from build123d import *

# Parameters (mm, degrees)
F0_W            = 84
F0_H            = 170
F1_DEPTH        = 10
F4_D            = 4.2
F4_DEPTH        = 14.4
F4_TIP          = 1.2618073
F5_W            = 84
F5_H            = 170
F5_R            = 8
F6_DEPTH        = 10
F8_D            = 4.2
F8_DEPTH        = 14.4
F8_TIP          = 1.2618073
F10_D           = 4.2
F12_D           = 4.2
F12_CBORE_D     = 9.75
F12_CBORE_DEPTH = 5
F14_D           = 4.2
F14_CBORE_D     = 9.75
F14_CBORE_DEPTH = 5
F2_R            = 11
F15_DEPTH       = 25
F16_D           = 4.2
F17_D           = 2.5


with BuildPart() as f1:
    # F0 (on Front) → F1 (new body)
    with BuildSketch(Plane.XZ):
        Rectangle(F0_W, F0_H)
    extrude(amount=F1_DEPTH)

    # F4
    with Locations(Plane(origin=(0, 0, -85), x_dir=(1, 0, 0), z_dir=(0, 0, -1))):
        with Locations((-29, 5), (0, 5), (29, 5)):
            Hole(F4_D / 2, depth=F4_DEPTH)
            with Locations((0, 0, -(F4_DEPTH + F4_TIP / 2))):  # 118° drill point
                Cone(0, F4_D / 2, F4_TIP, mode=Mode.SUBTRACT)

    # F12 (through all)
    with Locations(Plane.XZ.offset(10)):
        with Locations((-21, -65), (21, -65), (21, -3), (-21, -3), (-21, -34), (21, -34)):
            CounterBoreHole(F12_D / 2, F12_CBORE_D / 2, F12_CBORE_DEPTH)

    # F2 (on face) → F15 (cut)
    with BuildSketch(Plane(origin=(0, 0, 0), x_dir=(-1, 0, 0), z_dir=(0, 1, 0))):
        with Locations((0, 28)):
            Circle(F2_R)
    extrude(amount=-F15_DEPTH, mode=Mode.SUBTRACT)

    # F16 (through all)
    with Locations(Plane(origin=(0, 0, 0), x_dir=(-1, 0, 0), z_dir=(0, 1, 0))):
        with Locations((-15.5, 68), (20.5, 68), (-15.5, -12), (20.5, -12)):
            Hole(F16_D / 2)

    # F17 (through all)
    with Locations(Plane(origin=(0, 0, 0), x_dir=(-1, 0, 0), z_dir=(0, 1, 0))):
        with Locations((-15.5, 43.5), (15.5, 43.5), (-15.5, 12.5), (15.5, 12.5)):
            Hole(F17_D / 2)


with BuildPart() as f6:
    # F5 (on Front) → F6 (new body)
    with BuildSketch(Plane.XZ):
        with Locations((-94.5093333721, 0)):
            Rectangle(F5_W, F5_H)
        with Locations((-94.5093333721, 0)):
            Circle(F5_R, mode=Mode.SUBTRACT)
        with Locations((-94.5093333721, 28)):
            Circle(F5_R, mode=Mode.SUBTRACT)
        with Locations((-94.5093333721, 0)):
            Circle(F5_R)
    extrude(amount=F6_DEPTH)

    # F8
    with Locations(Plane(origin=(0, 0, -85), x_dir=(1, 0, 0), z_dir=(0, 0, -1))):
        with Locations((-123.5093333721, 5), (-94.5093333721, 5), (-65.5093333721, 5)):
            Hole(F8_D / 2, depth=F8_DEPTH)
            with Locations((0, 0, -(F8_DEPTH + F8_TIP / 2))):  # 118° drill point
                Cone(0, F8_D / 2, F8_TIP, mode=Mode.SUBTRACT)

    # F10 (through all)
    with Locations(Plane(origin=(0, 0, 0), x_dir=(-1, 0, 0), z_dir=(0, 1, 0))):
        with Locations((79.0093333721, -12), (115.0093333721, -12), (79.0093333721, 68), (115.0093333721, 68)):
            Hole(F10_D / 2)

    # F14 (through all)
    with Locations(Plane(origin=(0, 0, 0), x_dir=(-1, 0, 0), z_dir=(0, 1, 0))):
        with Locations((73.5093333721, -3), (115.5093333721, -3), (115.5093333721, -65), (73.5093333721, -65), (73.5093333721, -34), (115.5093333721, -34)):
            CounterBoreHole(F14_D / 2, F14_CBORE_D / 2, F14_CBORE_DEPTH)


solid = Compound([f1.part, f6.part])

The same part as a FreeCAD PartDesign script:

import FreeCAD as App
import Part
import Sketcher

V = App.Vector

doc = App.newDocument("Part")
body = doc.addObject("PartDesign::Body", "Body")

sketch1 = doc.addObject("Sketcher::SketchObject", "Sketch")
body.addObject(sketch1)
sketch1.AttachmentSupport = (doc.XZ_Plane, [""])
sketch1.MapMode = "FlatFace"
sketch1.addGeometry([
    Part.LineSegment(V(-42, 85, 0), V(-42, -85, 0)),
    Part.LineSegment(V(-42, -85, 0), V(42, -85, 0)),
    Part.LineSegment(V(42, -85, 0), V(42, 85, 0)),
    Part.LineSegment(V(42, 85, 0), V(-42, 85, 0)),
], False)
sketch1.addConstraint([
    Sketcher.Constraint("Coincident", 0, 2, 1, 1),
    Sketcher.Constraint("Coincident", 1, 2, 2, 1),
    Sketcher.Constraint("Coincident", 2, 2, 3, 1),
    Sketcher.Constraint("Coincident", 3, 2, 0, 1),
    Sketcher.Constraint("Vertical", 0),
    Sketcher.Constraint("Horizontal", 1),
    Sketcher.Constraint("Vertical", 2),
    Sketcher.Constraint("Horizontal", 3),
    Sketcher.Constraint("Symmetric", 0, 2, 2, 2, -1, 1),
    Sketcher.Constraint("DistanceX", 1, 1, 1, 2, 84.0),
    Sketcher.Constraint("DistanceY", 0, 2, 0, 1, 170.0),
])
pad1 = doc.addObject("PartDesign::Pad", "Pad")
body.addObject(pad1)
pad1.Profile = sketch1
pad1.Length = 10

sketch2 = doc.addObject("Sketcher::SketchObject", "Sketch001")
body.addObject(sketch2)
sketch2.AttachmentSupport = (doc.XY_Plane, [""])
sketch2.MapMode = "FlatFace"
sketch2.AttachmentOffset = App.Placement(V(0, 0, -85), App.Rotation())
sketch2.addGeometry([
    Part.Circle(V(-29, -5, 0), V(0, 0, 1), 2.1),
    Part.Circle(V(0, -5, 0), V(0, 0, 1), 2.1),
    Part.Circle(V(29, -5, 0), V(0, 0, 1), 2.1),
], False)
sketch2.addConstraint([
    Sketcher.Constraint("Equal", 0, 1),
    Sketcher.Constraint("Equal", 1, 2),
    Sketcher.Constraint("Symmetric", 0, 3, 2, 3, -2),
    Sketcher.Constraint("PointOnObject", 1, 3, -2),
    Sketcher.Constraint("Horizontal", 0, 3, 1, 3),
    Sketcher.Constraint("Diameter", 0, 4.2),
    Sketcher.Constraint("DistanceX", 0, 3, -1, 1, 29.0),
    Sketcher.Constraint("DistanceY", 0, 3, -1, 1, 5.0),
])
doc.recompute()
hole = doc.addObject("PartDesign::Hole", "Hole")
body.addObject(hole)
hole.Profile = sketch2
hole.ThreadType = "None"
hole.Diameter = 4.2
hole.DepthType = "Dimension"
hole.Depth = 14.4
hole.DrillPoint = "Angled"
hole.DrillPointAngle = 118
hole.Reversed = True

sketch3 = doc.addObject("Sketcher::SketchObject", "Sketch002")
body.addObject(sketch3)
sketch3.AttachmentSupport = (doc.XZ_Plane, [""])
sketch3.MapMode = "FlatFace"
sketch3.AttachmentOffset = App.Placement(V(0, 0, 10), App.Rotation())
sketch3.addGeometry([
    Part.Circle(V(-21, -65, 0), V(0, 0, 1), 2.1),
    Part.Circle(V(21, -65, 0), V(0, 0, 1), 2.1),
    Part.Circle(V(21, -3, 0), V(0, 0, 1), 2.1),
    Part.Circle(V(-21, -3, 0), V(0, 0, 1), 2.1),
    Part.Circle(V(-21, -34, 0), V(0, 0, 1), 2.1),
    Part.Circle(V(21, -34, 0), V(0, 0, 1), 2.1),
], False)
sketch3.addConstraint([
    Sketcher.Constraint("Equal", 0, 1),
    Sketcher.Constraint("Equal", 1, 2),
    Sketcher.Constraint("Equal", 2, 3),
    Sketcher.Constraint("Equal", 3, 4),
    Sketcher.Constraint("Equal", 4, 5),
    Sketcher.Constraint("Symmetric", 0, 3, 1, 3, -2),
    Sketcher.Constraint("Symmetric", 2, 3, 3, 3, -2),
    Sketcher.Constraint("Symmetric", 4, 3, 5, 3, -2),
    Sketcher.Constraint("Vertical", 1, 3, 2, 3),
    Sketcher.Constraint("Vertical", 3, 3, 4, 3),
    Sketcher.Constraint("Diameter", 0, 4.2),
    Sketcher.Constraint("DistanceX", 0, 3, -1, 1, 21.0),
    Sketcher.Constraint("DistanceY", 0, 3, -1, 1, 65.0),
    Sketcher.Constraint("DistanceY", 2, 3, -1, 1, 3.0),
    Sketcher.Constraint("DistanceY", 4, 3, -1, 1, 34.0),
])
doc.recompute()
hole2 = doc.addObject("PartDesign::Hole", "Hole001")
body.addObject(hole2)
hole2.Profile = sketch3
hole2.ThreadType = "None"
hole2.Diameter = 4.2
hole2.DepthType = "ThroughAll"
hole2.HoleCutType = "Counterbore"
hole2.HoleCutDiameter = 9.75
hole2.HoleCutDepth = 5

sketch4 = doc.addObject("Sketcher::SketchObject", "Sketch003")
body.addObject(sketch4)
sketch4.AttachmentSupport = (doc.XZ_Plane, [""])
sketch4.MapMode = "FlatFace"
sketch4.addGeometry(Part.Circle(V(0, 28, 0), V(0, 0, 1), 11), False)
sketch4.addConstraint([
    Sketcher.Constraint("PointOnObject", 0, 3, -2),
    Sketcher.Constraint("Diameter", 0, 22.0),
    Sketcher.Constraint("DistanceY", -1, 1, 0, 3, 28.0),
])
pocket1 = doc.addObject("PartDesign::Pocket", "Pocket")
body.addObject(pocket1)
pocket1.Profile = sketch4
pocket1.Length = 25
pocket1.Reversed = True

sketch5 = doc.addObject("Sketcher::SketchObject", "Sketch004")
body.addObject(sketch5)
sketch5.AttachmentSupport = (doc.XZ_Plane, [""])
sketch5.MapMode = "FlatFace"
sketch5.addGeometry([
    Part.Circle(V(15.5, 68, 0), V(0, 0, 1), 2.1),
    Part.Circle(V(-20.5, 68, 0), V(0, 0, 1), 2.1),
    Part.Circle(V(15.5, -12, 0), V(0, 0, 1), 2.1),
    Part.Circle(V(-20.5, -12, 0), V(0, 0, 1), 2.1),
], False)
sketch5.addConstraint([
    Sketcher.Constraint("Equal", 0, 1),
    Sketcher.Constraint("Equal", 1, 2),
    Sketcher.Constraint("Equal", 2, 3),
    Sketcher.Constraint("Horizontal", 0, 3, 1, 3),
    Sketcher.Constraint("Horizontal", 2, 3, 3, 3),
    Sketcher.Constraint("Vertical", 0, 3, 2, 3),
    Sketcher.Constraint("Vertical", 1, 3, 3, 3),
    Sketcher.Constraint("Diameter", 0, 4.2),
    Sketcher.Constraint("DistanceY", -1, 1, 0, 3, 68.0),
    Sketcher.Constraint("DistanceY", 2, 3, -1, 1, 12.0),
    Sketcher.Constraint("DistanceX", 1, 3, 0, 3, 36.0),
    Sketcher.Constraint("DistanceX", -1, 1, 0, 3, 15.5),
])
doc.recompute()
hole3 = doc.addObject("PartDesign::Hole", "Hole002")
body.addObject(hole3)
hole3.Profile = sketch5
hole3.ThreadType = "None"
hole3.Diameter = 4.2
hole3.DepthType = "ThroughAll"
hole3.Reversed = True

sketch6 = doc.addObject("Sketcher::SketchObject", "Sketch005")
body.addObject(sketch6)
sketch6.AttachmentSupport = (doc.XZ_Plane, [""])
sketch6.MapMode = "FlatFace"
sketch6.addGeometry([
    Part.Circle(V(15.5, 43.5, 0), V(0, 0, 1), 1.2),
    Part.Circle(V(-15.5, 43.5, 0), V(0, 0, 1), 1.2),
    Part.Circle(V(15.5, 12.5, 0), V(0, 0, 1), 1.2),
    Part.Circle(V(-15.5, 12.5, 0), V(0, 0, 1), 1.2),
], False)
sketch6.addConstraint([
    Sketcher.Constraint("Equal", 0, 1),
    Sketcher.Constraint("Equal", 1, 2),
    Sketcher.Constraint("Equal", 2, 3),
    Sketcher.Constraint("Symmetric", 0, 3, 1, 3, -2),
    Sketcher.Constraint("Symmetric", 2, 3, 3, 3, -2),
    Sketcher.Constraint("Vertical", 0, 3, 2, 3),
    Sketcher.Constraint("Diameter", 0, 2.5),
    Sketcher.Constraint("DistanceX", 1, 3, 0, 3, 31.0),
    Sketcher.Constraint("DistanceY", 2, 3, 0, 3, 31.0),
    Sketcher.Constraint("DistanceY", -1, 1, 0, 3, 43.5),
])
doc.recompute()
hole4 = doc.addObject("PartDesign::Hole", "Hole003")
body.addObject(hole4)
hole4.Profile = sketch6
hole4.ThreadType = "None"
hole4.Diameter = 2.5
hole4.DepthType = "ThroughAll"
hole4.Reversed = True
body2 = doc.addObject("PartDesign::Body", "Body001")

sketch7 = doc.addObject("Sketcher::SketchObject", "Sketch006")
body2.addObject(sketch7)
sketch7.AttachmentSupport = (doc.getObject("XZ_Plane001"), [""])
sketch7.MapMode = "FlatFace"
sketch7.addGeometry([
    Part.LineSegment(V(-137, 85, 0), V(-137, -85, 0)),
    Part.LineSegment(V(-137, -85, 0), V(-53, -85, 0)),
    Part.LineSegment(V(-53, -85, 0), V(-53, 85, 0)),
    Part.LineSegment(V(-53, 85, 0), V(-137, 85, 0)),
    Part.Circle(V(-95, 28, 0), V(0, 0, 1), 8),
], False)
sketch7.addConstraint([
    Sketcher.Constraint("Coincident", 0, 2, 1, 1),
    Sketcher.Constraint("Coincident", 1, 2, 2, 1),
    Sketcher.Constraint("Coincident", 2, 2, 3, 1),
    Sketcher.Constraint("Coincident", 3, 2, 0, 1),
    Sketcher.Constraint("Vertical", 0),
    Sketcher.Constraint("Horizontal", 1),
    Sketcher.Constraint("Vertical", 2),
    Sketcher.Constraint("Horizontal", 3),
    Sketcher.Constraint("Diameter", 4, 16.0),
    Sketcher.Constraint("DistanceX", 1, 1, 1, 2, 84.0),
    Sketcher.Constraint("DistanceY", 0, 2, 0, 1, 170.0),
    Sketcher.Constraint("DistanceY", -1, 1, 4, 3, 28.0),
    Sketcher.Constraint("DistanceY", 0, 2, -1, 1, 85.0),
    Sketcher.Constraint("DistanceX", 0, 2, 4, 3, 42.0),
    Sketcher.Constraint("DistanceX", 4, 3, -1, 1, 94.509333),
])
pad2 = doc.addObject("PartDesign::Pad", "Pad001")
body2.addObject(pad2)
pad2.Profile = sketch7
pad2.Length = 10

sketch8 = doc.addObject("Sketcher::SketchObject", "Sketch007")
body2.addObject(sketch8)
sketch8.AttachmentSupport = (doc.getObject("XY_Plane001"), [""])
sketch8.MapMode = "FlatFace"
sketch8.AttachmentOffset = App.Placement(V(0, 0, -85), App.Rotation())
sketch8.addGeometry([
    Part.Circle(V(-123.5, -5, 0), V(0, 0, 1), 2.1),
    Part.Circle(V(-94.5, -5, 0), V(0, 0, 1), 2.1),
    Part.Circle(V(-65.5, -5, 0), V(0, 0, 1), 2.1),
], False)
sketch8.addConstraint([
    Sketcher.Constraint("Equal", 0, 1),
    Sketcher.Constraint("Equal", 1, 2),
    Sketcher.Constraint("Horizontal", 0, 3, 1, 3),
    Sketcher.Constraint("Horizontal", 1, 3, 2, 3),
    Sketcher.Constraint("Diameter", 0, 4.2),
    Sketcher.Constraint("DistanceY", 0, 3, -1, 1, 5.0),
    Sketcher.Constraint("DistanceX", 0, 3, 1, 3, 29.0),
    Sketcher.Constraint("DistanceX", 1, 3, 2, 3, 29.0),
    Sketcher.Constraint("DistanceX", 0, 3, -1, 1, 123.509333),
])
doc.recompute()
hole5 = doc.addObject("PartDesign::Hole", "Hole004")
body2.addObject(hole5)
hole5.Profile = sketch8
hole5.ThreadType = "None"
hole5.Diameter = 4.2
hole5.DepthType = "Dimension"
hole5.Depth = 14.4
hole5.DrillPoint = "Angled"
hole5.DrillPointAngle = 118
hole5.Reversed = True

sketch9 = doc.addObject("Sketcher::SketchObject", "Sketch008")
body2.addObject(sketch9)
sketch9.AttachmentSupport = (doc.getObject("XZ_Plane001"), [""])
sketch9.MapMode = "FlatFace"
sketch9.addGeometry([
    Part.Circle(V(-79, -12, 0), V(0, 0, 1), 2.1),
    Part.Circle(V(-115, -12, 0), V(0, 0, 1), 2.1),
    Part.Circle(V(-79, 68, 0), V(0, 0, 1), 2.1),
    Part.Circle(V(-115, 68, 0), V(0, 0, 1), 2.1),
], False)
sketch9.addConstraint([
    Sketcher.Constraint("Equal", 0, 1),
    Sketcher.Constraint("Equal", 1, 2),
    Sketcher.Constraint("Equal", 2, 3),
    Sketcher.Constraint("Horizontal", 0, 3, 1, 3),
    Sketcher.Constraint("Horizontal", 2, 3, 3, 3),
    Sketcher.Constraint("Vertical", 0, 3, 2, 3),
    Sketcher.Constraint("Vertical", 1, 3, 3, 3),
    Sketcher.Constraint("Diameter", 0, 4.2),
    Sketcher.Constraint("DistanceY", 0, 3, -1, 1, 12.0),
    Sketcher.Constraint("DistanceY", -1, 1, 2, 3, 68.0),
    Sketcher.Constraint("DistanceX", 1, 3, 0, 3, 36.0),
    Sketcher.Constraint("DistanceX", 0, 3, -1, 1, 79.009333),
])
doc.recompute()
hole6 = doc.addObject("PartDesign::Hole", "Hole005")
body2.addObject(hole6)
hole6.Profile = sketch9
hole6.ThreadType = "None"
hole6.Diameter = 4.2
hole6.DepthType = "ThroughAll"
hole6.Reversed = True

sketch10 = doc.addObject("Sketcher::SketchObject", "Sketch009")
body2.addObject(sketch10)
sketch10.AttachmentSupport = (doc.getObject("XZ_Plane001"), [""])
sketch10.MapMode = "FlatFace"
sketch10.addGeometry([
    Part.Circle(V(-73.5, -3, 0), V(0, 0, 1), 2.1),
    Part.Circle(V(-115.5, -3, 0), V(0, 0, 1), 2.1),
    Part.Circle(V(-115.5, -65, 0), V(0, 0, 1), 2.1),
    Part.Circle(V(-73.5, -65, 0), V(0, 0, 1), 2.1),
    Part.Circle(V(-73.5, -34, 0), V(0, 0, 1), 2.1),
    Part.Circle(V(-115.5, -34, 0), V(0, 0, 1), 2.1),
], False)
sketch10.addConstraint([
    Sketcher.Constraint("Equal", 0, 1),
    Sketcher.Constraint("Equal", 1, 2),
    Sketcher.Constraint("Equal", 2, 3),
    Sketcher.Constraint("Equal", 3, 4),
    Sketcher.Constraint("Equal", 4, 5),
    Sketcher.Constraint("Horizontal", 0, 3, 1, 3),
    Sketcher.Constraint("Horizontal", 2, 3, 3, 3),
    Sketcher.Constraint("Horizontal", 4, 3, 5, 3),
    Sketcher.Constraint("Vertical", 1, 3, 2, 3),
    Sketcher.Constraint("Vertical", 0, 3, 3, 3),
    Sketcher.Constraint("Vertical", 3, 3, 4, 3),
    Sketcher.Constraint("Vertical", 2, 3, 5, 3),
    Sketcher.Constraint("Diameter", 0, 4.2),
    Sketcher.Constraint("DistanceY", 0, 3, -1, 1, 3.0),
    Sketcher.Constraint("DistanceY", 2, 3, -1, 1, 65.0),
    Sketcher.Constraint("DistanceY", 4, 3, -1, 1, 34.0),
    Sketcher.Constraint("DistanceX", 1, 3, 0, 3, 42.0),
    Sketcher.Constraint("DistanceX", 0, 3, -1, 1, 73.509333),
])
doc.recompute()
hole7 = doc.addObject("PartDesign::Hole", "Hole006")
body2.addObject(hole7)
hole7.Profile = sketch10
hole7.ThreadType = "None"
hole7.Diameter = 4.2
hole7.DepthType = "ThroughAll"
hole7.HoleCutType = "Counterbore"
hole7.HoleCutDiameter = 9.75
hole7.HoleCutDepth = 5
hole7.Reversed = True

doc.recompute()
